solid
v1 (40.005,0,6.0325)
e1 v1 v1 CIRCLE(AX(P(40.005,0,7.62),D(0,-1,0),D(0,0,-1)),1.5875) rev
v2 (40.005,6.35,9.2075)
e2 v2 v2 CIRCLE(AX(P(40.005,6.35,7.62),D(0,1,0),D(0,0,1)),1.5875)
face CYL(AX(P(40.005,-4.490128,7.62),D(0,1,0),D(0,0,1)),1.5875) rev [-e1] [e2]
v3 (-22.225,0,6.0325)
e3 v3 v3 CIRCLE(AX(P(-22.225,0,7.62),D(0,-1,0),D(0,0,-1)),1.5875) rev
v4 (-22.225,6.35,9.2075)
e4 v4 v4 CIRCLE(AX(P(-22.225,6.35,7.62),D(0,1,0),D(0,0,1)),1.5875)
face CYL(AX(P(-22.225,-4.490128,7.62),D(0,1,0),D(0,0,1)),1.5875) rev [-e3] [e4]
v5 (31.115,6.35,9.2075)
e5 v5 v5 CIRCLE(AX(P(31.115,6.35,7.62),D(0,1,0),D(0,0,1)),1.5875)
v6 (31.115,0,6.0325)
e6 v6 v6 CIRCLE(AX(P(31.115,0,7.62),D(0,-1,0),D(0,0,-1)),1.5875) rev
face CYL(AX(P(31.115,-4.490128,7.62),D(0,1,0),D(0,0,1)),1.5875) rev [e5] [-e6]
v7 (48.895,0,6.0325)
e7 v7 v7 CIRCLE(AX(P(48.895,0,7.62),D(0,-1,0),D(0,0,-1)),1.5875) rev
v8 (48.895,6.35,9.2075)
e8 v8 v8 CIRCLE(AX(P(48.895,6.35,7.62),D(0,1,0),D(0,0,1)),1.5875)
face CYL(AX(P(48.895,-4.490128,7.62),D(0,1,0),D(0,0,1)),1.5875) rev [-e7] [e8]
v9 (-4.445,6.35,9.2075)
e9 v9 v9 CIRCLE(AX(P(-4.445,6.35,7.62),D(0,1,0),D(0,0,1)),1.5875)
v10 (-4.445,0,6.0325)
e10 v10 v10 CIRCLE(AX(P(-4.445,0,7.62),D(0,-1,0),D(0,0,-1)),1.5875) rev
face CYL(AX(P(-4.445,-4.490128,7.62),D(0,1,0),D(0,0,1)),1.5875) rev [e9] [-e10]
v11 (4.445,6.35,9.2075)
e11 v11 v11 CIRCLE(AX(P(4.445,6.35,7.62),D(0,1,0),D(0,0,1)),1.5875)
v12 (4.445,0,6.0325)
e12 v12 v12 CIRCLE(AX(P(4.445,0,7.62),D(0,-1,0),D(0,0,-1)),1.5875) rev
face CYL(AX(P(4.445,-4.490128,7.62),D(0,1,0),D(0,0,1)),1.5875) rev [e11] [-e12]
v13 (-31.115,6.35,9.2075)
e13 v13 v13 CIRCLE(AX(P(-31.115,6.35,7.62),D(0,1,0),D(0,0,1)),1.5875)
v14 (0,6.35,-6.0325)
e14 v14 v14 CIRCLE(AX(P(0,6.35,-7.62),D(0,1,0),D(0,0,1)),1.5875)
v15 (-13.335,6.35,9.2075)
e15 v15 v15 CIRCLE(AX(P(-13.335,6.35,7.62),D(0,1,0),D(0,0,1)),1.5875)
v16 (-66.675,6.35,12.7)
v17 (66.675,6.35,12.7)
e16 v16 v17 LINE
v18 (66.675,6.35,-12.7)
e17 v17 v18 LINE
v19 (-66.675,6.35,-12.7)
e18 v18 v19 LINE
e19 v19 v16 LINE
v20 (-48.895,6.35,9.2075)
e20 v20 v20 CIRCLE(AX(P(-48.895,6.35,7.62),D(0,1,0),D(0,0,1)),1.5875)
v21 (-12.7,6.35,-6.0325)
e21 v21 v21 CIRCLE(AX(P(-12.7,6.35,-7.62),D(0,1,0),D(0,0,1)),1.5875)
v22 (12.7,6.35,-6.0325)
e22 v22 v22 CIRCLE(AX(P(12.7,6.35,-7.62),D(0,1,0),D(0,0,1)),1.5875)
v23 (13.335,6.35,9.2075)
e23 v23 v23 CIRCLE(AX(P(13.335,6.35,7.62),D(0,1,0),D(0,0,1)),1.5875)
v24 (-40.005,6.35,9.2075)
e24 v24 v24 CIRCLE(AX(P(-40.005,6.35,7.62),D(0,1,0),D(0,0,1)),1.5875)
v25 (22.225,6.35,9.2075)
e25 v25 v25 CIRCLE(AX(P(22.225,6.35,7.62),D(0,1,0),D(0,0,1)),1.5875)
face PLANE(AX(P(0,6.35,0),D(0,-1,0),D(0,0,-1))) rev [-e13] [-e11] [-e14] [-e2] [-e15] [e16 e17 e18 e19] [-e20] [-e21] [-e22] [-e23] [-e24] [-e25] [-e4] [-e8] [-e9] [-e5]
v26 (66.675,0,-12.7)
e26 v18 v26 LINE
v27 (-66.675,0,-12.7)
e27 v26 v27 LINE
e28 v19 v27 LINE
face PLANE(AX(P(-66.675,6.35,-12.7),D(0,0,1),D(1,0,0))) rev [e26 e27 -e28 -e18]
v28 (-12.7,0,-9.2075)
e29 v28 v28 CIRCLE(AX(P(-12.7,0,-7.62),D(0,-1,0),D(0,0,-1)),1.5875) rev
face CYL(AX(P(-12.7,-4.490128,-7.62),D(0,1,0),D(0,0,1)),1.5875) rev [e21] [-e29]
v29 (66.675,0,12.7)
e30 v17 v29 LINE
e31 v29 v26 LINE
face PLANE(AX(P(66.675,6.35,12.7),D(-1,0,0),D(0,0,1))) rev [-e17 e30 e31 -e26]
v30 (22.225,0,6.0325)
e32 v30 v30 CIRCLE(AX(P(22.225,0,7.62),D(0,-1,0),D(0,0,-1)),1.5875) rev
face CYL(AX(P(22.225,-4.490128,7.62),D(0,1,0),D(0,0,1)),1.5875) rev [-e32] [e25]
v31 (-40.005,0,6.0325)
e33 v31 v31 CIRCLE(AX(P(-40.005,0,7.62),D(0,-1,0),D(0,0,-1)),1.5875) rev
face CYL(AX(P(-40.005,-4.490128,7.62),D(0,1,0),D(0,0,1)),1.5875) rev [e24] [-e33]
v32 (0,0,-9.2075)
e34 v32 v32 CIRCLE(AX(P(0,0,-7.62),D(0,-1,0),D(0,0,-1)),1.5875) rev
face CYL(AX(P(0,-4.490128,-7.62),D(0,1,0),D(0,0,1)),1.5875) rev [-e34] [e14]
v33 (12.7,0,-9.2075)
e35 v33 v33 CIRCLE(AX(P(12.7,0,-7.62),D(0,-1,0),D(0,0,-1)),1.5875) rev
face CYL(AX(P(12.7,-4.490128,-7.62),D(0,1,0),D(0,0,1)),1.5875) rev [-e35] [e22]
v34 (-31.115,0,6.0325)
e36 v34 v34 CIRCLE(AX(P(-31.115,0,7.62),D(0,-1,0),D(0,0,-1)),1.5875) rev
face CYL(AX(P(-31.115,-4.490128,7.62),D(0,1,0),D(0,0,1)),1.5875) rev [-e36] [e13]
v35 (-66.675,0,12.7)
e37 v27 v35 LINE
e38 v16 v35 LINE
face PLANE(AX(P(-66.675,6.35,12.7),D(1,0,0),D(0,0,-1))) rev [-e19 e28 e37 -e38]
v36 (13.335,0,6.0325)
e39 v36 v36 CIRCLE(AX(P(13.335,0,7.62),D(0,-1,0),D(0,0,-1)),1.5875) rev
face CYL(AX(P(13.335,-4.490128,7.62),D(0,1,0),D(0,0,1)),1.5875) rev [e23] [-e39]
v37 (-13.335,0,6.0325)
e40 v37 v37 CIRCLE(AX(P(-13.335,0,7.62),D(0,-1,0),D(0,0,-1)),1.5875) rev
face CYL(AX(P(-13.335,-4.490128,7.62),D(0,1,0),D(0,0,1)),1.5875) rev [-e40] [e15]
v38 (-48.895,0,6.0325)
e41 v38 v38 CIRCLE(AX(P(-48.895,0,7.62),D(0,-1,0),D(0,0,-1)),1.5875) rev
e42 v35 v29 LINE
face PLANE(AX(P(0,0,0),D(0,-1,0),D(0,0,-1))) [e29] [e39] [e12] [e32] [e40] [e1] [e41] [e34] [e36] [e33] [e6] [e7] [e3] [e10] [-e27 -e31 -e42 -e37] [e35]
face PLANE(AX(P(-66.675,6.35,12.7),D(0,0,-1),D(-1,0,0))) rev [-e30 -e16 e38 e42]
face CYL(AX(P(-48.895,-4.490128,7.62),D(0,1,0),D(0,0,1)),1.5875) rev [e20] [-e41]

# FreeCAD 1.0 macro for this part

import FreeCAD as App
import Part
import Sketcher
from FreeCAD import Vector
Q = App.Units.Quantity

doc = App.newDocument("Part")
body = doc.addObject("PartDesign::Body", "Body")

# Sketch on XZ plane
sketch1 = body.newObject("Sketcher::SketchObject", "Sketch")
sketch1.AttachmentSupport = (doc.getObject("XZ_Plane"), [""])
sketch1.MapMode = "FlatFace"
sketch1.addGeometry([
    Part.LineSegment(Vector(-67, -13, 0), Vector(-67, 13, 0)),
    Part.LineSegment(Vector(-67, 13, 0), Vector(67, 13, 0)),
    Part.LineSegment(Vector(67, 13, 0), Vector(67, -13, 0)),
    Part.LineSegment(Vector(67, -13, 0), Vector(-67, -13, 0)),
], False)
sketch1.addConstraint([
    Sketcher.Constraint("Coincident", 0, 2, 1, 1),
    Sketcher.Constraint("Coincident", 1, 2, 2, 1),
    Sketcher.Constraint("Coincident", 2, 2, 3, 1),
    Sketcher.Constraint("Coincident", 3, 2, 0, 1),
    Sketcher.Constraint("Vertical", 0),
    Sketcher.Constraint("Horizontal", 1),
    Sketcher.Constraint("Vertical", 2),
    Sketcher.Constraint("Horizontal", 3),
    Sketcher.Constraint("Symmetric", 0, 2, 2, 2, -1, 1),
    Sketcher.Constraint("DistanceY", 0, 1, 0, 2, Q("1 in")),
    Sketcher.Constraint("DistanceX", 1, 1, 1, 2, Q("5.25 in")),
])
pad1 = body.newObject("PartDesign::Pad", "Pad")
pad1.Profile = sketch1
pad1.Length = Q("0.25 in")
pad1.Reversed = True

# Sketch on XZ plane
sketch2 = body.newObject("Sketcher::SketchObject", "Sketch001")
sketch2.AttachmentSupport = (doc.getObject("XZ_Plane"), [""])
sketch2.MapMode = "FlatFace"
sketch2.AttachmentOffset = App.Placement(Vector(0, 0, -0.25 * 25.4), App.Rotation())
sketch2.addGeometry([
    Part.Circle(Vector(0, -7.6, 0), Vector(0, 0, 1), 1.6),  # 0
    Part.Circle(Vector(-12.7, -7.6, 0), Vector(0, 0, 1), 1.6),  # 1
    Part.Circle(Vector(12.7, -7.6, 0), Vector(0, 0, 1), 1.6),  # 2
    Part.Circle(Vector(-48.9, 7.6, 0), Vector(0, 0, 1), 1.6),  # 3
    Part.Circle(Vector(-40, 7.6, 0), Vector(0, 0, 1), 1.6),  # 4
    Part.Circle(Vector(-31.1, 7.6, 0), Vector(0, 0, 1), 1.6),  # 5
    Part.Circle(Vector(-13.3, 7.6, 0), Vector(0, 0, 1), 1.6),  # 6
    Part.Circle(Vector(-22.2, 7.6, 0), Vector(0, 0, 1), 1.6),  # 7
    Part.Circle(Vector(-4.4, 7.6, 0), Vector(0, 0, 1), 1.6),  # 8
    Part.Circle(Vector(4.4, 7.6, 0), Vector(0, 0, 1), 1.6),  # 9
    Part.Circle(Vector(13.3, 7.6, 0), Vector(0, 0, 1), 1.6),  # 10
    Part.Circle(Vector(22.2, 7.6, 0), Vector(0, 0, 1), 1.6),  # 11
    Part.Circle(Vector(31.1, 7.6, 0), Vector(0, 0, 1), 1.6),  # 12
    Part.Circle(Vector(40, 7.6, 0), Vector(0, 0, 1), 1.6),  # 13
    Part.Circle(Vector(48.9, 7.6, 0), Vector(0, 0, 1), 1.6),  # 14
], False)
sketch2.addConstraint([
    Sketcher.Constraint("Equal", 0, 1),
    Sketcher.Constraint("Equal", 1, 2),
    Sketcher.Constraint("Equal", 2, 3),
    Sketcher.Constraint("Equal", 3, 4),
    Sketcher.Constraint("Equal", 4, 5),
    Sketcher.Constraint("Equal", 5, 6),
    Sketcher.Constraint("Equal", 6, 7),
    Sketcher.Constraint("Equal", 7, 8),
    Sketcher.Constraint("Equal", 8, 9),
    Sketcher.Constraint("Equal", 9, 10),
    Sketcher.Constraint("Equal", 10, 11),
    Sketcher.Constraint("Equal", 11, 12),
    Sketcher.Constraint("Equal", 12, 13),
    Sketcher.Constraint("Equal", 13, 14),
    Sketcher.Constraint("Symmetric", 1, 3, 2, 3, -2),
    Sketcher.Constraint("Symmetric", 8, 3, 9, 3, -2),
    Sketcher.Constraint("Symmetric", 6, 3, 10, 3, -2),
    Sketcher.Constraint("Symmetric", 7, 3, 11, 3, -2),
    Sketcher.Constraint("Symmetric", 5, 3, 12, 3, -2),
    Sketcher.Constraint("Symmetric", 4, 3, 13, 3, -2),
    Sketcher.Constraint("Symmetric", 3, 3, 14, 3, -2),
    Sketcher.Constraint("PointOnObject", 0, 3, -2),
    Sketcher.Constraint("Horizontal", 0, 3, 1, 3),
    Sketcher.Constraint("Horizontal", 3, 3, 4, 3),
    Sketcher.Constraint("Horizontal", 4, 3, 5, 3),
    Sketcher.Constraint("Horizontal", 5, 3, 6, 3),
    Sketcher.Constraint("Horizontal", 6, 3, 7, 3),
    Sketcher.Constraint("Horizontal", 7, 3, 8, 3),
    Sketcher.Constraint("Diameter", 0, Q("0.125 in")),
    Sketcher.Constraint("DistanceX", 1, 3, 2, 3, Q("1 in")),
    Sketcher.Constraint("DistanceY", 0, 3, -1, 1, Q("0.3 in")),
    Sketcher.Constraint("DistanceY", -1, 1, 3, 3, Q("0.3 in")),
    Sketcher.Constraint("DistanceX", 3, 3, 5, 3, Q("0.7 in")),
    Sketcher.Constraint("DistanceX", 5, 3, 6, 3, Q("0.7 in")),
    Sketcher.Constraint("DistanceX", 4, 3, 7, 3, Q("0.7 in")),
    Sketcher.Constraint("DistanceX", 7, 3, 8, 3, Q("0.7 in")),
    Sketcher.Constraint("DistanceX", 6, 3, 9, 3, Q("0.7 in")),
    Sketcher.Constraint("DistanceX", 3, 3, 4, 3, Q("0.35 in")),
])
pocket1 = body.newObject("PartDesign::Pocket", "Pocket")
pocket1.Profile = sketch2
pocket1.Length = Q("0.25 in")
pocket1.Reversed = True

doc.recompute()
